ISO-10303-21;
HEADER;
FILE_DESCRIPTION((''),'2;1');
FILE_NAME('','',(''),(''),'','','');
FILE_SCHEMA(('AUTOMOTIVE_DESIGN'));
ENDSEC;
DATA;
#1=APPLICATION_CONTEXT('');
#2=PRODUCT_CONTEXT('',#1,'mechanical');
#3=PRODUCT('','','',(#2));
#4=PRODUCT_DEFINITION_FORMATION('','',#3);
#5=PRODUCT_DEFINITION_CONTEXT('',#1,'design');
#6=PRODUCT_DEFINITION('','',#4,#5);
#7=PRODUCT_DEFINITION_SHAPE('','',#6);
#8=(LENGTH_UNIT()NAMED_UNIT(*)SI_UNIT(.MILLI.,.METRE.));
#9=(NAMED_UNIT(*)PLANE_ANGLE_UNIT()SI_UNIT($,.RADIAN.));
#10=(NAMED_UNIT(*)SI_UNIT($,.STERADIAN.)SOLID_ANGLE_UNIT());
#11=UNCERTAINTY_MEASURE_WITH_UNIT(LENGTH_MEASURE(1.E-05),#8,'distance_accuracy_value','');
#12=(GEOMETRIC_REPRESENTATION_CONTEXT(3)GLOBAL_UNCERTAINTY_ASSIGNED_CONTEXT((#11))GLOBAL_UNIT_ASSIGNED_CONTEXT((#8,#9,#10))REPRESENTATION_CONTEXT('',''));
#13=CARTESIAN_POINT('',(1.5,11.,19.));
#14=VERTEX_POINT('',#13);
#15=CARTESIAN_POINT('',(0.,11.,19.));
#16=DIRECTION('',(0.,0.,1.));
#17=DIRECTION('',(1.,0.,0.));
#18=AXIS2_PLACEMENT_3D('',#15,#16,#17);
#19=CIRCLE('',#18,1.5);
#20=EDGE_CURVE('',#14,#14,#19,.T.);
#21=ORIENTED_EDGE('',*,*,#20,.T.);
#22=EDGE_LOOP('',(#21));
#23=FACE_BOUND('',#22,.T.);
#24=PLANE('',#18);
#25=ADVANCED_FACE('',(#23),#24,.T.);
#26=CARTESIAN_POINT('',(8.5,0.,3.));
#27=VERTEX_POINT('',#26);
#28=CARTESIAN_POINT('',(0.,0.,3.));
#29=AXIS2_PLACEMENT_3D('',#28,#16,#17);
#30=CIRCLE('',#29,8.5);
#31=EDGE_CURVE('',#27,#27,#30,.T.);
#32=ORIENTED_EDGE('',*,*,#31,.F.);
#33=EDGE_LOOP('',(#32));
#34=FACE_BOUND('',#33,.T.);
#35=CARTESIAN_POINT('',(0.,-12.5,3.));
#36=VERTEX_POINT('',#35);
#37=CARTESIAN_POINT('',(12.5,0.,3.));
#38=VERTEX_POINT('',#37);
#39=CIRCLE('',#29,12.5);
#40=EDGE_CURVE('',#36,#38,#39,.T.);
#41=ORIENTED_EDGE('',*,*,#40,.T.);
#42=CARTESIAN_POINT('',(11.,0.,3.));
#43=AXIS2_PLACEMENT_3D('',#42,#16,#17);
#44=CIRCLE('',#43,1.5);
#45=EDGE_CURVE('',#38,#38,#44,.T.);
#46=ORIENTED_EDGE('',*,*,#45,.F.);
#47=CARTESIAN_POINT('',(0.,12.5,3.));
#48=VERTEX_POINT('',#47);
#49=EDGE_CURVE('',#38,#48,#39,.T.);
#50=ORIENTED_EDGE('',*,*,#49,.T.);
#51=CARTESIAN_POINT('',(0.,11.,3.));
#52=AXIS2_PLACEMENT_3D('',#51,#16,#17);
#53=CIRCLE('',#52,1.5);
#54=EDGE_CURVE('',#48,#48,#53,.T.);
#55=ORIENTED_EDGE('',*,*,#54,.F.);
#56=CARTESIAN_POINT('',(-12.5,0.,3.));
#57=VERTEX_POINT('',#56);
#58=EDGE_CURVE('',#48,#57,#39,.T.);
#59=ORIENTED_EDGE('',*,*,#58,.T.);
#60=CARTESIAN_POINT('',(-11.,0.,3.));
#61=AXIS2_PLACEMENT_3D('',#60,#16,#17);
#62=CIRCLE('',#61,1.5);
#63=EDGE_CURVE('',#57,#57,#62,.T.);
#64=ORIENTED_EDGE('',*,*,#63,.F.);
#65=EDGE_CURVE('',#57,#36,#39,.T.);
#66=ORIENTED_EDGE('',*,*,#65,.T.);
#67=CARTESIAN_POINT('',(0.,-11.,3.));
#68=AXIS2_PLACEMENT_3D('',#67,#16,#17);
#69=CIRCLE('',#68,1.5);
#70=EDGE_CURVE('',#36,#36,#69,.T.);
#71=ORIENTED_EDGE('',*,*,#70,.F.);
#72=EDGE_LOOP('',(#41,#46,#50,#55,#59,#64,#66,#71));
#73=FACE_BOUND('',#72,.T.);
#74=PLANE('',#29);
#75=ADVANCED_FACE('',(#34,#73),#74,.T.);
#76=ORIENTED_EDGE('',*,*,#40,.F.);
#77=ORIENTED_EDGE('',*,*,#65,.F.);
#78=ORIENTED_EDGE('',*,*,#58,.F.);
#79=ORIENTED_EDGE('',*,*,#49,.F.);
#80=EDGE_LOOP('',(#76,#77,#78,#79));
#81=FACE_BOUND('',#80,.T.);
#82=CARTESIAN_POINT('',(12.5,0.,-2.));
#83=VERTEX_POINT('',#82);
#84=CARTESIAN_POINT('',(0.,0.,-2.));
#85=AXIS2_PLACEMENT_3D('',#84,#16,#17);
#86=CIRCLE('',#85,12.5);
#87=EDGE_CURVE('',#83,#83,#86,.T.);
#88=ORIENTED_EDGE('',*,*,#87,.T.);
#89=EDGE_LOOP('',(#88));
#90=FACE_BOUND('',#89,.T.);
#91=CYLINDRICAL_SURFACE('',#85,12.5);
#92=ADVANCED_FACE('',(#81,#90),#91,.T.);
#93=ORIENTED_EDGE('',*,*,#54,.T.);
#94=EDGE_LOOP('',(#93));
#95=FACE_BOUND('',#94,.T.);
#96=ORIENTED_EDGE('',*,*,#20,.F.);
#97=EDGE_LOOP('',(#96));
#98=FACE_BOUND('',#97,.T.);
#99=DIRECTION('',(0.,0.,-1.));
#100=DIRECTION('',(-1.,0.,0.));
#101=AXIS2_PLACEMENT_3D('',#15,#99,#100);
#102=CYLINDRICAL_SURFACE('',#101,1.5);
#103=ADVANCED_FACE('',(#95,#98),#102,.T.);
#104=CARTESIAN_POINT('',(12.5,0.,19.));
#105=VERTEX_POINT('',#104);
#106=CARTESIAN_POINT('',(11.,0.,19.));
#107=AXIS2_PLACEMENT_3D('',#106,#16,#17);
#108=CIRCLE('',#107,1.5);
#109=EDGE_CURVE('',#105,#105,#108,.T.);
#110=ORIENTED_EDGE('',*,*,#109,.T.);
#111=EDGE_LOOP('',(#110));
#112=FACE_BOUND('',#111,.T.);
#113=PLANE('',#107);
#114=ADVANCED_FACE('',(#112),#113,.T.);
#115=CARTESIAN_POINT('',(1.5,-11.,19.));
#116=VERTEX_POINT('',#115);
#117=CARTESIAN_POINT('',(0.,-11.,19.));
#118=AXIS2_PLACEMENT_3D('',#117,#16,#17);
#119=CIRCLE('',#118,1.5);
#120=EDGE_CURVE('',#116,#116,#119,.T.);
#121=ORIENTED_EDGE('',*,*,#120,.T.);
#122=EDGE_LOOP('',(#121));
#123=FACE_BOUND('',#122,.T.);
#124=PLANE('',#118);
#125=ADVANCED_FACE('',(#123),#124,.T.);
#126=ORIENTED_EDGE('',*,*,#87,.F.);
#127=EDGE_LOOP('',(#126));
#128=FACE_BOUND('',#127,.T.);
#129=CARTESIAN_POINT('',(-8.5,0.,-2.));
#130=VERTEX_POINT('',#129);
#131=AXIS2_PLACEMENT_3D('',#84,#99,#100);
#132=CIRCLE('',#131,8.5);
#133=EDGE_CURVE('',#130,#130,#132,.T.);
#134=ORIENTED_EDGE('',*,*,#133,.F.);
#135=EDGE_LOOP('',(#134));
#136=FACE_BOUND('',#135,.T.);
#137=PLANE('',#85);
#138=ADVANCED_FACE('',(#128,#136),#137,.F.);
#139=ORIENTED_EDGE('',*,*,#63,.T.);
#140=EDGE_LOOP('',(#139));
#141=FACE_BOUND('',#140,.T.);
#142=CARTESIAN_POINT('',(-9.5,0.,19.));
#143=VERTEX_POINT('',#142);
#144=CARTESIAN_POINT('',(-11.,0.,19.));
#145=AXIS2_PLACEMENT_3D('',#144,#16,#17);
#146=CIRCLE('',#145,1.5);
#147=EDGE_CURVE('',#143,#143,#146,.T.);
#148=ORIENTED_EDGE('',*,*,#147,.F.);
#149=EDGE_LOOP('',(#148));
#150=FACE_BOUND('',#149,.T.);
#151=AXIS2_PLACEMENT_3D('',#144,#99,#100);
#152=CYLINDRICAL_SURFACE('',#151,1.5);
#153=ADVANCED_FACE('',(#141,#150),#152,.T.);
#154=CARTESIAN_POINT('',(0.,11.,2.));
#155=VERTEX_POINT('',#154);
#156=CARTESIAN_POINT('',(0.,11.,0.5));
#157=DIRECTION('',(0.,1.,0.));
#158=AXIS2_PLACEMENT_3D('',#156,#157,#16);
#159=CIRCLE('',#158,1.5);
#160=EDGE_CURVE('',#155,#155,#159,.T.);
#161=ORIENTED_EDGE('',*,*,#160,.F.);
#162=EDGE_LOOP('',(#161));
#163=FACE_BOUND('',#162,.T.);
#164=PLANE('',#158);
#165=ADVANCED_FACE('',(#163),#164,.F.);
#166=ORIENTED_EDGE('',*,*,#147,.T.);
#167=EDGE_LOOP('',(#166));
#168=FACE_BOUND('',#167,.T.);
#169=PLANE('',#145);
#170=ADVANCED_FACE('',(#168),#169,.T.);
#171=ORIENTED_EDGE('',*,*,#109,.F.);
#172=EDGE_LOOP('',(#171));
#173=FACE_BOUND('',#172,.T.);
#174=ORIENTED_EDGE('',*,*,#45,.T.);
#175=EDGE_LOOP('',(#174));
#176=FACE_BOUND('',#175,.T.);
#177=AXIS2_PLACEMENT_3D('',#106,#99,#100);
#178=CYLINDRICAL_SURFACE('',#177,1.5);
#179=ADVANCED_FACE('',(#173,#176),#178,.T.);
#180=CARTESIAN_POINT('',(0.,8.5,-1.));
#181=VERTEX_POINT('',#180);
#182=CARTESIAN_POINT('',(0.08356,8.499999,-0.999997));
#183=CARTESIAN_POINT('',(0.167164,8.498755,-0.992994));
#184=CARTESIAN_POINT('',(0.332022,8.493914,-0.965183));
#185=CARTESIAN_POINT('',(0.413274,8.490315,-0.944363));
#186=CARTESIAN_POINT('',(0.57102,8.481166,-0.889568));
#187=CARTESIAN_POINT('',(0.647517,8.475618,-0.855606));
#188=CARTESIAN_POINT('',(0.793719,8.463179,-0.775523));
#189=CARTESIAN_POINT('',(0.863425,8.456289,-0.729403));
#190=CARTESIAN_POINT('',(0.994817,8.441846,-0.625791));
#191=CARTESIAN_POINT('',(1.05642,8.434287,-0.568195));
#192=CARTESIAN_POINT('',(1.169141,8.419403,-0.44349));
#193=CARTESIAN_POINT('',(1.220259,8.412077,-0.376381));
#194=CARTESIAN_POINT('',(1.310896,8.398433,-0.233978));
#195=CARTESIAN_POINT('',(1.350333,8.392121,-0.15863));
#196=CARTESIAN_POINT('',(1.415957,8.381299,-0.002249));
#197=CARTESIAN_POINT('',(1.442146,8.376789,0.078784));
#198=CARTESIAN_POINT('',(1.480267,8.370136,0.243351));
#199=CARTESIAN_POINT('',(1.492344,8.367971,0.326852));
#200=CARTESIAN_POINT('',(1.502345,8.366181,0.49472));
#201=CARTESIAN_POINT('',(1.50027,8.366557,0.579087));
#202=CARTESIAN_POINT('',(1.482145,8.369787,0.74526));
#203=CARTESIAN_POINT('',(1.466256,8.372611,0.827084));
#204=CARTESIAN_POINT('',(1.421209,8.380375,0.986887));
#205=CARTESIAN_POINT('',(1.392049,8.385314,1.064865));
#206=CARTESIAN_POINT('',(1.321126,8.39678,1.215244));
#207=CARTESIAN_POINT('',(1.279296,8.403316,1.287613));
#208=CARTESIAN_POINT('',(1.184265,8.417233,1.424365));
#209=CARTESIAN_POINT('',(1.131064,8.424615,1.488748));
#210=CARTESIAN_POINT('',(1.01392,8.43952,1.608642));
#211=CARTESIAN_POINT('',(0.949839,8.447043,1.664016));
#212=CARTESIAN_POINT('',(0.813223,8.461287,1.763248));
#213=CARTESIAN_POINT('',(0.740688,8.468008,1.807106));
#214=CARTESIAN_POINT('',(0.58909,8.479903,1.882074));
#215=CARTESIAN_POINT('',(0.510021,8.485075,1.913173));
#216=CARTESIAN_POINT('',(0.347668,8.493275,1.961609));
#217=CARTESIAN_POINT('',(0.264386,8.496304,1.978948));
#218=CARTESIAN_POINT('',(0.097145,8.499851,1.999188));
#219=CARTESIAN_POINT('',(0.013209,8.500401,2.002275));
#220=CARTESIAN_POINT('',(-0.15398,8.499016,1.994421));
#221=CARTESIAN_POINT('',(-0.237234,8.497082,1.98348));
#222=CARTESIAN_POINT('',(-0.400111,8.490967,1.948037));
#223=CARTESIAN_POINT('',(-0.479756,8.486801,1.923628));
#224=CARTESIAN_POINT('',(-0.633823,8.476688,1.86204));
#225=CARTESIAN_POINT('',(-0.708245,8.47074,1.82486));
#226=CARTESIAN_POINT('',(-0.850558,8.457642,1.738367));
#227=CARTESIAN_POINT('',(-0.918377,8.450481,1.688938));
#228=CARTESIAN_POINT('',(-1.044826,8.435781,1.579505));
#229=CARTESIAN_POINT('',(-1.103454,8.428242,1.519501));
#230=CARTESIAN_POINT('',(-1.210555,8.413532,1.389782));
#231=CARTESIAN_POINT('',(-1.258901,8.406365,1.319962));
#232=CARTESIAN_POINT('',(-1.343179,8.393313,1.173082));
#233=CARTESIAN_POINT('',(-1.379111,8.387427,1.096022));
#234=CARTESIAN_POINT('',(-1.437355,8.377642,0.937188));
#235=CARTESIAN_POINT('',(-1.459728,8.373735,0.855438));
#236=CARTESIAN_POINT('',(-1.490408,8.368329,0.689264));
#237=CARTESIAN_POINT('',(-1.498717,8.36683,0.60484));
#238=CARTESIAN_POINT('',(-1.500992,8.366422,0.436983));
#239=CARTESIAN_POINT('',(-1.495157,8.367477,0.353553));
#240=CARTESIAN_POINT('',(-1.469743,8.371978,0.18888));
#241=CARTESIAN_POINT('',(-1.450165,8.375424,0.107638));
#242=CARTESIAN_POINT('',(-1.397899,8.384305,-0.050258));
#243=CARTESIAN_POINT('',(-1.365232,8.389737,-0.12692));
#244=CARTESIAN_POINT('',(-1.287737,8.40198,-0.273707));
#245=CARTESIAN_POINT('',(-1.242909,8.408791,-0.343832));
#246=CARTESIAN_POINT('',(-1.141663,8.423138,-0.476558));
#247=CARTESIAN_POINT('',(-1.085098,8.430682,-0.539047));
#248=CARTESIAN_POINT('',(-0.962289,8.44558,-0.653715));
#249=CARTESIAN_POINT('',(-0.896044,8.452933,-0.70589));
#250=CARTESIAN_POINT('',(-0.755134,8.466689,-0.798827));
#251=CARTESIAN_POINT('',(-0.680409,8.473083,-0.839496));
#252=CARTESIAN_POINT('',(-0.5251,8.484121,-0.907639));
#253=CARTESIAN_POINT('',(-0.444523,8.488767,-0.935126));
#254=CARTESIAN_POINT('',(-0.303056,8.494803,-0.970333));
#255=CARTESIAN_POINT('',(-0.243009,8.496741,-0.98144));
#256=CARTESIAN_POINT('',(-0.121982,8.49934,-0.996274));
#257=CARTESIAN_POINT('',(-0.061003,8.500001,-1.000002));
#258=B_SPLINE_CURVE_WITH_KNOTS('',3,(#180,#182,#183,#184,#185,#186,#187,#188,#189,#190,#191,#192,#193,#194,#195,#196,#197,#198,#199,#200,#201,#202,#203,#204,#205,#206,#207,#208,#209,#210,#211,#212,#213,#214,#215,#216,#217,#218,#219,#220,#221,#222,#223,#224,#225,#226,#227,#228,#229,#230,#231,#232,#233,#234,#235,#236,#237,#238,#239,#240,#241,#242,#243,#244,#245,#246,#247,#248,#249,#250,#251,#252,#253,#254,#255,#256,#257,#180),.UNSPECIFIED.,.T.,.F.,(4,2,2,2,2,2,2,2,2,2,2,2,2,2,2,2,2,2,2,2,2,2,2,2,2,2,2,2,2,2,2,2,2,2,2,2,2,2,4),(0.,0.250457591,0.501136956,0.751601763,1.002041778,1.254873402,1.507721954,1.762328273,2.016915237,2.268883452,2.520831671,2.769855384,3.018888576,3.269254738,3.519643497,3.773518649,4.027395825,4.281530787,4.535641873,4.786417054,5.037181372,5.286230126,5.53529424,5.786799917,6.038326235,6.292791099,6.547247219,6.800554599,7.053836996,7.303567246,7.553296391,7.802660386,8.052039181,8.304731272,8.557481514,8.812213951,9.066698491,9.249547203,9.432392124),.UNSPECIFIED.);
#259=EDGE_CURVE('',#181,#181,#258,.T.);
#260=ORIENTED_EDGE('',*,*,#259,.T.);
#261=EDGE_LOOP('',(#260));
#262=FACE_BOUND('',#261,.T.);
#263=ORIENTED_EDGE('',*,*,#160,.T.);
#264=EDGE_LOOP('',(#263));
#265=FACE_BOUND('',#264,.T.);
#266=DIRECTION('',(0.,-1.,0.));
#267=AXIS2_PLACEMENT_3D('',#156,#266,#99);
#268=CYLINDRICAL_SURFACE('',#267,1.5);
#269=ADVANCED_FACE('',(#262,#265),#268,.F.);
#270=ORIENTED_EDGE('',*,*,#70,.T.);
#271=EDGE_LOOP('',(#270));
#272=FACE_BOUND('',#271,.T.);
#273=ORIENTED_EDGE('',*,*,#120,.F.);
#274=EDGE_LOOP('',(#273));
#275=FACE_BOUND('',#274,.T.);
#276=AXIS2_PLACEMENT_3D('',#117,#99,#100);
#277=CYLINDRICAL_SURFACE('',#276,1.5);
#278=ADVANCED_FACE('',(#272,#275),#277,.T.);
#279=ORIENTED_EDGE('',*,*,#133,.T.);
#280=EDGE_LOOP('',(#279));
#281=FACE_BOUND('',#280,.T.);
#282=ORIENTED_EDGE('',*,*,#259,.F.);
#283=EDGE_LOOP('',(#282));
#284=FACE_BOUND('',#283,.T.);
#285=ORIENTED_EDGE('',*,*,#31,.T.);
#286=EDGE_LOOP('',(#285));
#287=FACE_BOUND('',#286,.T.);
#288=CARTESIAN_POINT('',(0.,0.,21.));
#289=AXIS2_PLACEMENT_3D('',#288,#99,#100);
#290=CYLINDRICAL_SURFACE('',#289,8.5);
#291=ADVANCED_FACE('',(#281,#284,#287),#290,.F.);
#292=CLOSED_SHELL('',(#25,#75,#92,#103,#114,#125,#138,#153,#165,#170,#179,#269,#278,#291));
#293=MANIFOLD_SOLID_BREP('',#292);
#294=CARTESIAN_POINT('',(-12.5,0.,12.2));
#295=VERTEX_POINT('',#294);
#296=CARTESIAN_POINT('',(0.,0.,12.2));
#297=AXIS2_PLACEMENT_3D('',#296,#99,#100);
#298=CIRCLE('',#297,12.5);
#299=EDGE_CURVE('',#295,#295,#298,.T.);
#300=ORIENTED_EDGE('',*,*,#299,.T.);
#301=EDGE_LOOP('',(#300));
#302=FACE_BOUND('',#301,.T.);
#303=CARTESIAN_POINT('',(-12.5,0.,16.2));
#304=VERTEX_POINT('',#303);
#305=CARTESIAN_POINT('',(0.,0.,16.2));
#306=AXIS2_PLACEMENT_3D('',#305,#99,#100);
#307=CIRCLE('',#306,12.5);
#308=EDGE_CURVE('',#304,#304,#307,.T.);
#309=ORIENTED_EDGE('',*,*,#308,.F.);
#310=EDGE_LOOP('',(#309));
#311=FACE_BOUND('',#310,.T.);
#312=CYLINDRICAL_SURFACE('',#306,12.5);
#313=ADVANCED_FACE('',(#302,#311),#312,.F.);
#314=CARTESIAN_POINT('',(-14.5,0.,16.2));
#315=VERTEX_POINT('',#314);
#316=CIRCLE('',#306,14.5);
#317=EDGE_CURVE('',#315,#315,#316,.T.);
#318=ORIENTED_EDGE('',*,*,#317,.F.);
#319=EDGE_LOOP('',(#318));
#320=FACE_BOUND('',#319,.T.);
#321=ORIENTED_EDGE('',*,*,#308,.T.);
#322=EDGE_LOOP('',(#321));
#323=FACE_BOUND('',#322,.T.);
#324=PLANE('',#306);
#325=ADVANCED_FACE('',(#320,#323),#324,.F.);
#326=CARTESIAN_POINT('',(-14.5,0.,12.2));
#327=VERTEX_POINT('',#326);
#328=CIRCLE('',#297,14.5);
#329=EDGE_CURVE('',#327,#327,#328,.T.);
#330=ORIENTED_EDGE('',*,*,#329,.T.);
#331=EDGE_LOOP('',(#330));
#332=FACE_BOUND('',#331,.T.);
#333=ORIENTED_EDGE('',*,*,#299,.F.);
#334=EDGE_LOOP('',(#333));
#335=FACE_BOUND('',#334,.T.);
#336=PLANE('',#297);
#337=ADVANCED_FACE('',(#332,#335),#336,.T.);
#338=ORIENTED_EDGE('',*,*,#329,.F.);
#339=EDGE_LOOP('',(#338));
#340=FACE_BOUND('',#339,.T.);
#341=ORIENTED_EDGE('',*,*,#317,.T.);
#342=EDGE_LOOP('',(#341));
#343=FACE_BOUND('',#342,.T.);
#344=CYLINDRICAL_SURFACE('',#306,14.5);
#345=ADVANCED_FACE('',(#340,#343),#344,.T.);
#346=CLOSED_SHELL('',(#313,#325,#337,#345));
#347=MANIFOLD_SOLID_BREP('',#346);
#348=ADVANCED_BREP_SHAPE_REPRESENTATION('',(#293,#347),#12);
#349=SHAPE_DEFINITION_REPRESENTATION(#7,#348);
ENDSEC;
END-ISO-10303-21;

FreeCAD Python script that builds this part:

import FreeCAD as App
import Part
import Sketcher
from FreeCAD import Vector

doc = App.newDocument("Part")
body = doc.addObject("PartDesign::Body", "Body")

# Sketch on XY plane
sketch1 = body.newObject("Sketcher::SketchObject", "Sketch")
sketch1.AttachmentSupport = (doc.getObject("XY_Plane"), [""])
sketch1.MapMode = "FlatFace"
sketch1.addGeometry(Part.Circle(Vector(0, 0, 0), Vector(0, 0, 1), 12.5), False)
sketch1.addConstraint(Sketcher.Constraint("Coincident", 0, 3, -1, 1))
sketch1.addConstraint(Sketcher.Constraint("Diameter", 0, 25.0))
pad1 = body.newObject("PartDesign::Pad", "Pad")
pad1.Profile = sketch1
pad1.Type = "TwoLengths"
pad1.Length = 3
pad1.Length2 = 2

# Sketch on XY plane
sketch2 = body.newObject("Sketcher::SketchObject", "Sketch001")
sketch2.AttachmentSupport = (doc.getObject("XY_Plane"), [""])
sketch2.MapMode = "FlatFace"
sketch2.AttachmentOffset = App.Placement(Vector(0, 0, -2), App.Rotation())
sketch2.addGeometry(Part.Circle(Vector(0, 0, 0), Vector(0, 0, 1), 8.5), False)
sketch2.addConstraint(Sketcher.Constraint("Coincident", 0, 3, -1, 1))
sketch2.addConstraint(Sketcher.Constraint("Diameter", 0, 17.0))
pocket1 = body.newObject("PartDesign::Pocket", "Pocket")
pocket1.Profile = sketch2
pocket1.Length = 23
pocket1.Reversed = True

# Sketch on XY plane
sketch3 = body.newObject("Sketcher::SketchObject", "Sketch002")
sketch3.AttachmentSupport = (doc.getObject("XY_Plane"), [""])
sketch3.MapMode = "FlatFace"
sketch3.AttachmentOffset = App.Placement(Vector(0, 0, 3), App.Rotation())
sketch3.addGeometry(Part.Circle(Vector(0, 11, 0), Vector(0, 0, 1), 1.5), False)
sketch3.addGeometry(Part.Circle(Vector(11, 0, 0), Vector(0, 0, 1), 1.5), False)
sketch3.addGeometry(Part.Circle(Vector(0, -11, 0), Vector(0, 0, 1), 1.5), False)
sketch3.addGeometry(Part.Circle(Vector(-11, 0, 0), Vector(0, 0, 1), 1.5), False)
sketch3.addConstraint(Sketcher.Constraint("Equal", 0, 1))
sketch3.addConstraint(Sketcher.Constraint("Equal", 1, 2))
sketch3.addConstraint(Sketcher.Constraint("Equal", 2, 3))
sketch3.addConstraint(Sketcher.Constraint("Symmetric", 0, 3, 2, 3, -1, 1))
sketch3.addConstraint(Sketcher.Constraint("Symmetric", 1, 3, 3, 3, -1, 1))
sketch3.addConstraint(Sketcher.Constraint("PointOnObject", 0, 3, -2))
sketch3.addConstraint(Sketcher.Constraint("PointOnObject", 1, 3, -1))
sketch3.addConstraint(Sketcher.Constraint("Diameter", 0, 3.0))
sketch3.addConstraint(Sketcher.Constraint("DistanceY", -1, 1, 0, 3, 11.0))
sketch3.addConstraint(Sketcher.Constraint("DistanceX", -1, 1, 1, 3, 11.0))
pad2 = body.newObject("PartDesign::Pad", "Pad001")
pad2.Profile = sketch3
pad2.Length = 16

# Sketch on XZ plane
sketch4 = body.newObject("Sketcher::SketchObject", "Sketch003")
sketch4.AttachmentSupport = (doc.getObject("XZ_Plane"), [""])
sketch4.MapMode = "FlatFace"
sketch4.addGeometry(Part.Circle(Vector(0, 0.5, 0), Vector(0, 0, 1), 1.5), False)
sketch4.addConstraint(Sketcher.Constraint("PointOnObject", 0, 3, -2))
sketch4.addConstraint(Sketcher.Constraint("Diameter", 0, 3.0))
sketch4.addConstraint(Sketcher.Constraint("DistanceY", -1, 1, 0, 3, 0.5))
pocket2 = body.newObject("PartDesign::Pocket", "Pocket001")
pocket2.Profile = sketch4
pocket2.Length = 11
body2 = doc.addObject("PartDesign::Body", "Body001")

# Sketch on XY plane
sketch5 = body2.newObject("Sketcher::SketchObject", "Sketch004")
sketch5.AttachmentSupport = (doc.getObject("XY_Plane001"), [""])
sketch5.MapMode = "FlatFace"
sketch5.AttachmentOffset = App.Placement(Vector(0, 0, 12.2), App.Rotation())
sketch5.addGeometry(Part.Circle(Vector(0, 0, 0), Vector(0, 0, 1), 14.5), False)
sketch5.addGeometry(Part.Circle(Vector(0, 0, 0), Vector(0, 0, 1), 12.5), False)
sketch5.addConstraint(Sketcher.Constraint("Coincident", 0, 3, -1, 1))
sketch5.addConstraint(Sketcher.Constraint("Coincident", 1, 3, -1, 1))
sketch5.addConstraint(Sketcher.Constraint("Diameter", 0, 29.0))
sketch5.addConstraint(Sketcher.Constraint("Diameter", 1, 25.0))
pad3 = body2.newObject("PartDesign::Pad", "Pad002")
pad3.Profile = sketch5
pad3.Length = 4

doc.recompute()
